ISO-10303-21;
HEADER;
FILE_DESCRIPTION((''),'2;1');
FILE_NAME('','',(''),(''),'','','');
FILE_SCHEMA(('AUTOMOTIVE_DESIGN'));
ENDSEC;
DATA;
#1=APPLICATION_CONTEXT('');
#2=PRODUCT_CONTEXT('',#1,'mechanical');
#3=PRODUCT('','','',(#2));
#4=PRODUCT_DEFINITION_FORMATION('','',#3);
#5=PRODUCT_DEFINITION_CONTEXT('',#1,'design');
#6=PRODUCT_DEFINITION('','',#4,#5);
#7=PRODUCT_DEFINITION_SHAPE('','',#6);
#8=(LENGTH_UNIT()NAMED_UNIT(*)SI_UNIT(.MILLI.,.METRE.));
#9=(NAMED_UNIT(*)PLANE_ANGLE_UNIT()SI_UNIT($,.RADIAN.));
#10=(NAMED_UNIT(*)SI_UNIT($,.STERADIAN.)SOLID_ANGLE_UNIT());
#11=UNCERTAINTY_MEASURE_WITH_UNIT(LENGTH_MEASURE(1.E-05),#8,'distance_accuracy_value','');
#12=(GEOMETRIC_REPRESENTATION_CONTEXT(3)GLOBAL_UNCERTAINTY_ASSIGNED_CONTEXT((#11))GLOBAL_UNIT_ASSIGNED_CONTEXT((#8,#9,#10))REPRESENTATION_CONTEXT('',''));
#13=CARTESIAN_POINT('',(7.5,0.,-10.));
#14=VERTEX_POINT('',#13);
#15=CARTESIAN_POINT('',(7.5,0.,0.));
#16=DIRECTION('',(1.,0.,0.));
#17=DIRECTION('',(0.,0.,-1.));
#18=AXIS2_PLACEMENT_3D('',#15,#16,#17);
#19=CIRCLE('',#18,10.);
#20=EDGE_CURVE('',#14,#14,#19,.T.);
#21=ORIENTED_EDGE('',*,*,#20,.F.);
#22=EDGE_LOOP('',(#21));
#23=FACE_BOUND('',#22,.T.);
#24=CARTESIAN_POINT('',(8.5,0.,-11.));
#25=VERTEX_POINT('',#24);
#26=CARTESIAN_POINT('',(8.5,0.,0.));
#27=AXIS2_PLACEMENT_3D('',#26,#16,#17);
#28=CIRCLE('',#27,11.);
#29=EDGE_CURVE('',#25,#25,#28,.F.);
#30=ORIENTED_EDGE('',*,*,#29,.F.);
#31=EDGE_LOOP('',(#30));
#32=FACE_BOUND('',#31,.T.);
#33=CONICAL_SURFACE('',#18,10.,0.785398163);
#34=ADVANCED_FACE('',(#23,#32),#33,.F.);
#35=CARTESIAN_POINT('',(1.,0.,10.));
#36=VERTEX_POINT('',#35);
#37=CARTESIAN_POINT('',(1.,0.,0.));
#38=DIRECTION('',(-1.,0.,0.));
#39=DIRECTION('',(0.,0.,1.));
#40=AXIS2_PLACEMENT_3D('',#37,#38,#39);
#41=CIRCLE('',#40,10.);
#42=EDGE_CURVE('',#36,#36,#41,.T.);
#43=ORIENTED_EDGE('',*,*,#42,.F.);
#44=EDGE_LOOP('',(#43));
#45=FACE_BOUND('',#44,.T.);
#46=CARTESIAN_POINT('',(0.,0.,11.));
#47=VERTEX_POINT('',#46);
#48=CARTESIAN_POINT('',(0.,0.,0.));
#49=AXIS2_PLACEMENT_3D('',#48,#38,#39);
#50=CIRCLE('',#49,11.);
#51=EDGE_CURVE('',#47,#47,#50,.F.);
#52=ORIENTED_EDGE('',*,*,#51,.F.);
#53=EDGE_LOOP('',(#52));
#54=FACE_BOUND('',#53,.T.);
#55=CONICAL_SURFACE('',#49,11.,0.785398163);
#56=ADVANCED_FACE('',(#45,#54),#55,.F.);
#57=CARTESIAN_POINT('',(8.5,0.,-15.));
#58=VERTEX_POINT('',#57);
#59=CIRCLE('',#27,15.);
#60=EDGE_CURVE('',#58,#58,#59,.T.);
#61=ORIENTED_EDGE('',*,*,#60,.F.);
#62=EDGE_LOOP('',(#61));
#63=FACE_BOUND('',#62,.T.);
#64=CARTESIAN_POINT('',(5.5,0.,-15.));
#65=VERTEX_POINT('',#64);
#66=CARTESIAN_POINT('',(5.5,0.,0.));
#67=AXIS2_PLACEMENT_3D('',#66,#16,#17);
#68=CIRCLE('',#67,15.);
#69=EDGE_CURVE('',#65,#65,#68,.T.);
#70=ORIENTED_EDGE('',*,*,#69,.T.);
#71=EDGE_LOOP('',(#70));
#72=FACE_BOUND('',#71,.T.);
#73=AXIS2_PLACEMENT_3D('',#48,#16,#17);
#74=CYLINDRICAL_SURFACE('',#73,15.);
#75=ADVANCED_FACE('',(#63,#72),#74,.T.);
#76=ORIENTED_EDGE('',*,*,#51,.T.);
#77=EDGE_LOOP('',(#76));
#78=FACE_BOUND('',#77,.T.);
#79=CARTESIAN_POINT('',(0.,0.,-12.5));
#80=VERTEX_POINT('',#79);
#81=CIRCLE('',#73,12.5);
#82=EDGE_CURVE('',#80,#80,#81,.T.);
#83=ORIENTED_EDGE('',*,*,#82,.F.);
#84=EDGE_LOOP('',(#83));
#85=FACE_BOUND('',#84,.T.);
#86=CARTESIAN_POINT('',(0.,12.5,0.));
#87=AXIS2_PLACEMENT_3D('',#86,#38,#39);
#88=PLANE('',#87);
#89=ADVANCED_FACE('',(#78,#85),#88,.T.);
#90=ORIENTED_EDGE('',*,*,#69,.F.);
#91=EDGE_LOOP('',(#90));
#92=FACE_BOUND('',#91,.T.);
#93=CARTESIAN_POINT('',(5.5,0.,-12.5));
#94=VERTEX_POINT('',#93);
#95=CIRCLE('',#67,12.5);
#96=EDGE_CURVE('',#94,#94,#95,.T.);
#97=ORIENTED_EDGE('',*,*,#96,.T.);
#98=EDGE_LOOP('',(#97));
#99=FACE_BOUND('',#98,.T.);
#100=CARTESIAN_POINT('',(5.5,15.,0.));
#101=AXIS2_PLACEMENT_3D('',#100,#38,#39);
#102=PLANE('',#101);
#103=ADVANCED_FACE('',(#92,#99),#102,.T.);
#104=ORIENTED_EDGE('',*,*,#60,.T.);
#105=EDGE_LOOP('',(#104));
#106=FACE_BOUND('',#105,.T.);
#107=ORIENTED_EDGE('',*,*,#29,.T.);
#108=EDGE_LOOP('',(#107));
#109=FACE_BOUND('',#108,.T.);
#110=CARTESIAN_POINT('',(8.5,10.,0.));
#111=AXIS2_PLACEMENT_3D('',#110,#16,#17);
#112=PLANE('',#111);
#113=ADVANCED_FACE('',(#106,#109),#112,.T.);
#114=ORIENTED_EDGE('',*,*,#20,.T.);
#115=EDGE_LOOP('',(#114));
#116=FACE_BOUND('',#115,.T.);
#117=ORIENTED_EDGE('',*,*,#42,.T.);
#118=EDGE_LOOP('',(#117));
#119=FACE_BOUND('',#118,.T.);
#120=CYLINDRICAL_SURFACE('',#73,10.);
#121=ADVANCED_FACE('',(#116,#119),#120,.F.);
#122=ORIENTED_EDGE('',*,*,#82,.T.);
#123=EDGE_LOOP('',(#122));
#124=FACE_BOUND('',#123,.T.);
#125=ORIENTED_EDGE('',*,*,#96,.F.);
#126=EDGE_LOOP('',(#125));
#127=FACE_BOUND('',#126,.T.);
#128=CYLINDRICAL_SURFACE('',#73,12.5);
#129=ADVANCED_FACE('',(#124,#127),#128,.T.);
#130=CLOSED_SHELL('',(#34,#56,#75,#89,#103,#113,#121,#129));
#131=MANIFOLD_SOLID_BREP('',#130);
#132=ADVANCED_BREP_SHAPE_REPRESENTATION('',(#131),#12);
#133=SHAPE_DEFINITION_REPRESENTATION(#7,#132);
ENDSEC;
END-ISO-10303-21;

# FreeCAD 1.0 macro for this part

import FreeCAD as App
import Part
import Sketcher
Q = App.Units.Quantity


def edges_at(feature, points):
    """Names of the edges that pass closest to the given points."""
    edges = feature.Shape.Edges
    near = lambda p: min(range(len(edges)), key=lambda i: edges[i].distToShape(Part.Vertex(*p))[0])
    return sorted({f"Edge{near(p) + 1}" for p in points})

doc = App.newDocument("Part")
body = doc.addObject("PartDesign::Body", "Body")

# Sketch on XY plane
sketch1 = doc.addObject("Sketcher::SketchObject", "Sketch")
body.addObject(sketch1)
sketch1.AttachmentSupport = (doc.XY_Plane, [""])
sketch1.MapMode = "FlatFace"
sketch1.addGeometry([
    Part.LineSegment(App.Vector(0, 10, 0), App.Vector(8.5, 10, 0)),  # 0
    Part.LineSegment(App.Vector(8.5, 10, 0), App.Vector(8.5, 15, 0)),  # 1
    Part.LineSegment(App.Vector(8.5, 15, 0), App.Vector(5.5, 15, 0)),  # 2
    Part.LineSegment(App.Vector(5.5, 15, 0), App.Vector(5.5, 12.5, 0)),  # 3
    Part.LineSegment(App.Vector(5.5, 12.5, 0), App.Vector(0, 12.5, 0)),  # 4
    Part.LineSegment(App.Vector(0, 12.5, 0), App.Vector(0, 10, 0)),  # 5
], False)
sketch1.addConstraint([
    Sketcher.Constraint("Coincident", 0, 2, 1, 1),
    Sketcher.Constraint("Coincident", 1, 2, 2, 1),
    Sketcher.Constraint("Coincident", 2, 2, 3, 1),
    Sketcher.Constraint("Coincident", 3, 2, 4, 1),
    Sketcher.Constraint("Coincident", 4, 2, 5, 1),
    Sketcher.Constraint("Coincident", 5, 2, 0, 1),
    Sketcher.Constraint("Horizontal", 0),
    Sketcher.Constraint("Vertical", 1),
    Sketcher.Constraint("Horizontal", 2),
    Sketcher.Constraint("Vertical", 3),
    Sketcher.Constraint("Horizontal", 4),
    Sketcher.Constraint("Vertical", 5),
    Sketcher.Constraint("PointOnObject", 4, 2, -2),
    Sketcher.Constraint("Equal", 3, 5),
    Sketcher.Constraint("DistanceX", 2, 2, 2, 1, Q("3 mm")),
    Sketcher.Constraint("DistanceY", 1, 1, 1, 2, Q("5 mm")),
    Sketcher.Constraint("DistanceX", 0, 1, 0, 2, Q("8.5 mm")),
    Sketcher.Constraint("DistanceY", -1, 1, 0, 2, Q("10 mm")),
])
revolution = doc.addObject("PartDesign::Revolution", "Revolution")
body.addObject(revolution)
revolution.Profile = sketch1
revolution.ReferenceAxis = (sketch1, ["H_Axis"])
revolution.Angle = 360
doc.recompute()

chamfer = doc.addObject("PartDesign::Chamfer", "Chamfer")
body.addObject(chamfer)
chamfer.Base = (revolution, edges_at(revolution, [(8.5, 0, 10), (0, 0, 10)]))
chamfer.Size = 1

doc.recompute()
